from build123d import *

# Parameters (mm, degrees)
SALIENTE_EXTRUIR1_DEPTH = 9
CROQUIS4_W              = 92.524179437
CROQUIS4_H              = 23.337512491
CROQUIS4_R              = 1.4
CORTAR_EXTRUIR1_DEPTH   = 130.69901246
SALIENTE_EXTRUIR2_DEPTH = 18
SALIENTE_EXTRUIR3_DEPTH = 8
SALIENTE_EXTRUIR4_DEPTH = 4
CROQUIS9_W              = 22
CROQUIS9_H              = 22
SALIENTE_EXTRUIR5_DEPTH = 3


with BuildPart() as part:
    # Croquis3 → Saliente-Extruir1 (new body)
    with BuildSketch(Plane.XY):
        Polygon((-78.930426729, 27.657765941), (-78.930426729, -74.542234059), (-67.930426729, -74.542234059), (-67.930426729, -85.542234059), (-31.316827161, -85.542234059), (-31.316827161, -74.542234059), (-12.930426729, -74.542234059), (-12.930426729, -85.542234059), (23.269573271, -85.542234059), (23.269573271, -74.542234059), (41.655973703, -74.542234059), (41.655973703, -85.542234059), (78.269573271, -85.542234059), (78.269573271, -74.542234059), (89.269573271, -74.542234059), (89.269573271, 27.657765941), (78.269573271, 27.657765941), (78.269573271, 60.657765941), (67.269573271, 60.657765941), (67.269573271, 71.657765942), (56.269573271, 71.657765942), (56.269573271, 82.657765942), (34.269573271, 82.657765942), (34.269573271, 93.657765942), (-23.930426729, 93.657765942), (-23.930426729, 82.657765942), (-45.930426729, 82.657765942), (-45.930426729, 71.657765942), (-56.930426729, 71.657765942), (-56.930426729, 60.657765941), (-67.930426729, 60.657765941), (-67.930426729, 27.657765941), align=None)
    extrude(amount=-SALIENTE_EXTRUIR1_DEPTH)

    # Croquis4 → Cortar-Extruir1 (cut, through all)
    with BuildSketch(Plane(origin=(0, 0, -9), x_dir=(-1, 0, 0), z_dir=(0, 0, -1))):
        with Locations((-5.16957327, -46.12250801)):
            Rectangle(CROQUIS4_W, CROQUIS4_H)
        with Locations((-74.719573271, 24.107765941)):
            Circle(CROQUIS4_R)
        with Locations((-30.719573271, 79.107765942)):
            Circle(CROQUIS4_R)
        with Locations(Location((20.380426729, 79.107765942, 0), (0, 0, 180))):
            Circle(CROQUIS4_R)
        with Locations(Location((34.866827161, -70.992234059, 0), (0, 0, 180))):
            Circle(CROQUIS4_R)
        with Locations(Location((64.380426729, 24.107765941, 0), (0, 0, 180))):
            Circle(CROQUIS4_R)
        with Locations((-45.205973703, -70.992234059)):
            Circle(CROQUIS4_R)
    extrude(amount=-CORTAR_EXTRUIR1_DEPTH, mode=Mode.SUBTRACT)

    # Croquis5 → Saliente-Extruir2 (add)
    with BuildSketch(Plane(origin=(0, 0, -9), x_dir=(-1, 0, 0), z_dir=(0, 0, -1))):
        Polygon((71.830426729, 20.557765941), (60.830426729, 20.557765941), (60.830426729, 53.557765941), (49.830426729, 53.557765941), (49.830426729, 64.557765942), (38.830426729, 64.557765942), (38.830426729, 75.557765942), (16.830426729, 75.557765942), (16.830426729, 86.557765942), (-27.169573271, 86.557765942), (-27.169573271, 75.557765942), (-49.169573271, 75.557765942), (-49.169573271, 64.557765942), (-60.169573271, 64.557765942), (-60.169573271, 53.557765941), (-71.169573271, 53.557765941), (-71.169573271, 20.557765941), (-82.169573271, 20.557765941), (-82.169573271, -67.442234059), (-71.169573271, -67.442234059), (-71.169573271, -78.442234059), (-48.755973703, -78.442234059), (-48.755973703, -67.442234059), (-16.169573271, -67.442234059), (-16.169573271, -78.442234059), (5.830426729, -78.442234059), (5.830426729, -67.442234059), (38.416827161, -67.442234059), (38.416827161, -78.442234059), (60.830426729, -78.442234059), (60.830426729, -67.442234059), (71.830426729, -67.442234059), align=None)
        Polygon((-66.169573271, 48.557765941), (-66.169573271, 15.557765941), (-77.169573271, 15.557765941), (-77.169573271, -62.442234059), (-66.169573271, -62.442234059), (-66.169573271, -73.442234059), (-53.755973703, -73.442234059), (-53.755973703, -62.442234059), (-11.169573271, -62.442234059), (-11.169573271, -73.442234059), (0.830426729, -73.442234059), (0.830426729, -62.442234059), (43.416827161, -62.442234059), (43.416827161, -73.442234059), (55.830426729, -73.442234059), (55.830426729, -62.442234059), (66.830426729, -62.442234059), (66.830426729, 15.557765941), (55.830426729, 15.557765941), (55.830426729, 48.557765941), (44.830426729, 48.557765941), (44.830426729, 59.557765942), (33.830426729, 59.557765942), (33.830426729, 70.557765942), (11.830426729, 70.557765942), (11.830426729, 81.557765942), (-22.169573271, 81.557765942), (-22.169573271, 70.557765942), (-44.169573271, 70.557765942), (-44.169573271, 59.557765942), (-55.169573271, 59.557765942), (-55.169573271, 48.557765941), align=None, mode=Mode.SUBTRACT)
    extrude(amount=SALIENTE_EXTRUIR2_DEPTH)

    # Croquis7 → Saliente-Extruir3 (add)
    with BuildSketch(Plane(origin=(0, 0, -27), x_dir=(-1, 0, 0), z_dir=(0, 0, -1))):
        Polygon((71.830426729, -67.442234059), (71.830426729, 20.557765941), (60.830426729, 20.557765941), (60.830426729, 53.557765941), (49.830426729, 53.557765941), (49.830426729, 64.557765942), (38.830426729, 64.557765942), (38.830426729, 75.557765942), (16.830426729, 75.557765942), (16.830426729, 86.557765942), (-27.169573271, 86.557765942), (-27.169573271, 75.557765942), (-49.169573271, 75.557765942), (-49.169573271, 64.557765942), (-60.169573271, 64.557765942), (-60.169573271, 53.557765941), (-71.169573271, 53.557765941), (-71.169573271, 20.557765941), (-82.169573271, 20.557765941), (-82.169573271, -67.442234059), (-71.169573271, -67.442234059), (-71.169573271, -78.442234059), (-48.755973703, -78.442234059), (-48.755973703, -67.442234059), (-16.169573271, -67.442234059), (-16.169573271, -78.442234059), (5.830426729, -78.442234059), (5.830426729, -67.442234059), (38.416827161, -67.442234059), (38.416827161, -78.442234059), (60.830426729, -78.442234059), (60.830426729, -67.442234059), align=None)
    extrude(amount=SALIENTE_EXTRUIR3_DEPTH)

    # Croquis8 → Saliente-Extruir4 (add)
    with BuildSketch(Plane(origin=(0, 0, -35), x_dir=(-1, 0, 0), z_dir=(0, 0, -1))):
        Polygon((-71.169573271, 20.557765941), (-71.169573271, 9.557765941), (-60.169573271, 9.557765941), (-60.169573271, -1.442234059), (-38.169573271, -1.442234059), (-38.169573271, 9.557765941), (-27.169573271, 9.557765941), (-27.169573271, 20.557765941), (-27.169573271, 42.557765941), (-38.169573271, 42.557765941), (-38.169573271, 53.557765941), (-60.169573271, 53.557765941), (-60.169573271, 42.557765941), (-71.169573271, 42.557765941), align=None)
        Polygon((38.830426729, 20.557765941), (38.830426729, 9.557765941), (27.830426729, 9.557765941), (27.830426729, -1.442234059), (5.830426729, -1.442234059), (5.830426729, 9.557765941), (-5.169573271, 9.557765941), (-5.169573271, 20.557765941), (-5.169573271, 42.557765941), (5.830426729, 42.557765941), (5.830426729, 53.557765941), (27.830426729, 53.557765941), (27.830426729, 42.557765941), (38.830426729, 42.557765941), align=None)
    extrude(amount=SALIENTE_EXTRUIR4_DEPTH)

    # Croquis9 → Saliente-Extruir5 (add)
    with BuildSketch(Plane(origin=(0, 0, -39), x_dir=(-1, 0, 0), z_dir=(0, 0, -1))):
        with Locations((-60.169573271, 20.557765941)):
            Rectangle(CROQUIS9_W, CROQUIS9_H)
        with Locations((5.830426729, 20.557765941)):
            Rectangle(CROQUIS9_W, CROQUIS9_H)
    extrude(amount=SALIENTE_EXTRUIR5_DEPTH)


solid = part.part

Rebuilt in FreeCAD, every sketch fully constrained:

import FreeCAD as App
import Part
import Sketcher

V = App.Vector

doc = App.newDocument("Part")
body = doc.addObject("PartDesign::Body", "Body")

# Sketch on XY plane
sketch1 = body.newObject("Sketcher::SketchObject", "Sketch")
sketch1.AttachmentSupport = (doc.getObject("XY_Plane"), [""])
sketch1.MapMode = "FlatFace"
sketch1.addGeometry([
    Part.LineSegment(V(-79, 28, 0), V(-79, -75, 0)),  # 0
    Part.LineSegment(V(-79, -75, 0), V(-68, -75, 0)),  # 1
    Part.LineSegment(V(-68, -75, 0), V(-68, -86, 0)),  # 2
    Part.LineSegment(V(-68, -86, 0), V(-31, -86, 0)),  # 3
    Part.LineSegment(V(-31, -86, 0), V(-31, -75, 0)),  # 4
    Part.LineSegment(V(-31, -75, 0), V(-13, -75, 0)),  # 5
    Part.LineSegment(V(-13, -75, 0), V(-13, -86, 0)),  # 6
    Part.LineSegment(V(-13, -86, 0), V(23, -86, 0)),  # 7
    Part.LineSegment(V(23, -86, 0), V(23, -75, 0)),  # 8
    Part.LineSegment(V(23, -75, 0), V(42, -75, 0)),  # 9
    Part.LineSegment(V(42, -75, 0), V(42, -86, 0)),  # 10
    Part.LineSegment(V(42, -86, 0), V(78, -86, 0)),  # 11
    Part.LineSegment(V(78, -86, 0), V(78, -75, 0)),  # 12
    Part.LineSegment(V(78, -75, 0), V(89, -75, 0)),  # 13
    Part.LineSegment(V(89, -75, 0), V(89, 28, 0)),  # 14
    Part.LineSegment(V(89, 28, 0), V(78, 28, 0)),  # 15
    Part.LineSegment(V(78, 28, 0), V(78, 61, 0)),  # 16
    Part.LineSegment(V(78, 61, 0), V(67, 61, 0)),  # 17
    Part.LineSegment(V(67, 61, 0), V(67, 72, 0)),  # 18
    Part.LineSegment(V(67, 72, 0), V(56, 72, 0)),  # 19
    Part.LineSegment(V(56, 72, 0), V(56, 83, 0)),  # 20
    Part.LineSegment(V(56, 83, 0), V(34, 83, 0)),  # 21
    Part.LineSegment(V(34, 83, 0), V(34, 94, 0)),  # 22
    Part.LineSegment(V(34, 94, 0), V(-24, 94, 0)),  # 23
    Part.LineSegment(V(-24, 94, 0), V(-24, 83, 0)),  # 24
    Part.LineSegment(V(-24, 83, 0), V(-46, 83, 0)),  # 25
    Part.LineSegment(V(-46, 83, 0), V(-46, 72, 0)),  # 26
    Part.LineSegment(V(-46, 72, 0), V(-57, 72, 0)),  # 27
    Part.LineSegment(V(-57, 72, 0), V(-57, 61, 0)),  # 28
    Part.LineSegment(V(-57, 61, 0), V(-68, 61, 0)),  # 29
    Part.LineSegment(V(-68, 61, 0), V(-68, 28, 0)),  # 30
    Part.LineSegment(V(-68, 28, 0), V(-79, 28, 0)),  # 31
], False)
sketch1.addConstraint([
    Sketcher.Constraint("Coincident", 0, 2, 1, 1),
    Sketcher.Constraint("Coincident", 1, 2, 2, 1),
    Sketcher.Constraint("Coincident", 2, 2, 3, 1),
    Sketcher.Constraint("Coincident", 3, 2, 4, 1),
    Sketcher.Constraint("Coincident", 4, 2, 5, 1),
    Sketcher.Constraint("Coincident", 5, 2, 6, 1),
    Sketcher.Constraint("Coincident", 6, 2, 7, 1),
    Sketcher.Constraint("Coincident", 7, 2, 8, 1),
    Sketcher.Constraint("Coincident", 8, 2, 9, 1),
    Sketcher.Constraint("Coincident", 9, 2, 10, 1),
    Sketcher.Constraint("Coincident", 10, 2, 11, 1),
    Sketcher.Constraint("Coincident", 11, 2, 12, 1),
    Sketcher.Constraint("Coincident", 12, 2, 13, 1),
    Sketcher.Constraint("Coincident", 13, 2, 14, 1),
    Sketcher.Constraint("Coincident", 14, 2, 15, 1),
    Sketcher.Constraint("Coincident", 15, 2, 16, 1),
    Sketcher.Constraint("Coincident", 16, 2, 17, 1),
    Sketcher.Constraint("Coincident", 17, 2, 18, 1),
    Sketcher.Constraint("Coincident", 18, 2, 19, 1),
    Sketcher.Constraint("Coincident", 19, 2, 20, 1),
    Sketcher.Constraint("Coincident", 20, 2, 21, 1),
    Sketcher.Constraint("Coincident", 21, 2, 22, 1),
    Sketcher.Constraint("Coincident", 22, 2, 23, 1),
    Sketcher.Constraint("Coincident", 23, 2, 24, 1),
    Sketcher.Constraint("Coincident", 24, 2, 25, 1),
    Sketcher.Constraint("Coincident", 25, 2, 26, 1),
    Sketcher.Constraint("Coincident", 26, 2, 27, 1),
    Sketcher.Constraint("Coincident", 27, 2, 28, 1),
    Sketcher.Constraint("Coincident", 28, 2, 29, 1),
    Sketcher.Constraint("Coincident", 29, 2, 30, 1),
    Sketcher.Constraint("Coincident", 30, 2, 31, 1),
    Sketcher.Constraint("Coincident", 31, 2, 0, 1),
    Sketcher.Constraint("Vertical", 0),
    Sketcher.Constraint("Horizontal", 1),
    Sketcher.Constraint("Vertical", 2),
    Sketcher.Constraint("Horizontal", 3),
    Sketcher.Constraint("Vertical", 4),
    Sketcher.Constraint("Horizontal", 5),
    Sketcher.Constraint("Vertical", 6),
    Sketcher.Constraint("Horizontal", 7),
    Sketcher.Constraint("Vertical", 8),
    Sketcher.Constraint("Horizontal", 9),
    Sketcher.Constraint("Vertical", 10),
    Sketcher.Constraint("Horizontal", 11),
    Sketcher.Constraint("Vertical", 12),
    Sketcher.Constraint("Horizontal", 13),
    Sketcher.Constraint("Vertical", 14),
    Sketcher.Constraint("Horizontal", 15),
    Sketcher.Constraint("Vertical", 16),
    Sketcher.Constraint("Horizontal", 17),
    Sketcher.Constraint("Vertical", 18),
    Sketcher.Constraint("Horizontal", 19),
    Sketcher.Constraint("Vertical", 20),
    Sketcher.Constraint("Horizontal", 21),
    Sketcher.Constraint("Vertical", 22),
    Sketcher.Constraint("Horizontal", 23),
    Sketcher.Constraint("Vertical", 24),
    Sketcher.Constraint("Horizontal", 25),
    Sketcher.Constraint("Vertical", 26),
    Sketcher.Constraint("Horizontal", 27),
    Sketcher.Constraint("Vertical", 28),
    Sketcher.Constraint("Horizontal", 29),
    Sketcher.Constraint("Vertical", 30),
    Sketcher.Constraint("Horizontal", 31),
    Sketcher.Constraint("Horizontal", 1, 2, 4, 2),
    Sketcher.Constraint("Horizontal", 3, 2, 6, 2),
    Sketcher.Constraint("Horizontal", 5, 2, 8, 2),
    Sketcher.Constraint("Horizontal", 7, 2, 10, 2),
    Sketcher.Constraint("Horizontal", 9, 2, 12, 2),
    Sketcher.Constraint("Horizontal", 21, 2, 24, 2),
    Sketcher.Constraint("Horizontal", 19, 2, 26, 2),
    Sketcher.Constraint("Horizontal", 17, 2, 28, 2),
    Sketcher.Constraint("Horizontal", 15, 2, 30, 2),
    Sketcher.Constraint("Vertical", 12, 2, 15, 2),
    Sketcher.Constraint("Vertical", 2, 2, 29, 2),
    Sketcher.Constraint("Equal", 5, 9),
    Sketcher.Constraint("Equal", 3, 11),
    Sketcher.Constraint("Equal", 1, 13),
    Sketcher.Constraint("Equal", 15, 17),
    Sketcher.Constraint("Equal", 17, 19),
    Sketcher.Constraint("Equal", 21, 25),
    Sketcher.Constraint("Equal", 19, 27),
    Sketcher.Constraint("Equal", 27, 29),
    Sketcher.Constraint("Equal", 31, 2),
    Sketcher.Constraint("Equal", 12, 18),
    Sketcher.Constraint("Equal", 18, 20),
    Sketcher.Constraint("Equal", 20, 22),
    Sketcher.Constraint("DistanceX", 1, 1, 1, 2, 11.0),
    Sketcher.Constraint("DistanceX", 21, 2, 21, 1, 22.0),
    Sketcher.Constraint("DistanceY", 16, 1, 16, 2, 33.0),
    Sketcher.Constraint("DistanceX", 7, 1, 7, 2, 36.2),
    Sketcher.Constraint("DistanceX", 23, 2, 23, 1, 58.2),
    Sketcher.Constraint("DistanceY", 0, 2, 0, 1, 102.2),
    Sketcher.Constraint("DistanceX", 3, 1, 3, 2, 36.6136),
    Sketcher.Constraint("DistanceX", 0, 2, -1, 1, 78.930427),
    Sketcher.Constraint("DistanceY", 0, 2, -1, 1, 74.542234),
])
pad1 = body.newObject("PartDesign::Pad", "Pad")
pad1.Profile = sketch1
pad1.Length = 9
pad1.Reversed = True

# Sketch on XY plane
sketch2 = body.newObject("Sketcher::SketchObject", "Sketch001")
sketch2.AttachmentSupport = (doc.getObject("XY_Plane"), [""])
sketch2.MapMode = "FlatFace"
sketch2.AttachmentOffset = App.Placement(V(0, 0, -9), App.Rotation())
sketch2.addGeometry([
    Part.LineSegment(V(51.4, -34.5, 0), V(51.4, -57.8, 0)),  # 0
    Part.LineSegment(V(51.4, -57.8, 0), V(-41.1, -57.8, 0)),  # 1
    Part.LineSegment(V(-41.1, -57.8, 0), V(-41.1, -34.5, 0)),  # 2
    Part.LineSegment(V(-41.1, -34.5, 0), V(51.4, -34.5, 0)),  # 3
    Part.Circle(V(74.7, 24.1, 0), V(0, 0, 1), 1.4),  # 4
    Part.Circle(V(30.7, 79.1, 0), V(0, 0, 1), 1.4),  # 5
    Part.Circle(V(-20.4, 79.1, 0), V(0, 0, 1), 1.4),  # 6
    Part.Circle(V(-34.9, -71, 0), V(0, 0, 1), 1.4),  # 7
    Part.Circle(V(-64.4, 24.1, 0), V(0, 0, 1), 1.4),  # 8
    Part.Circle(V(45.2, -71, 0), V(0, 0, 1), 1.4),  # 9
], False)
sketch2.addConstraint([
    Sketcher.Constraint("Coincident", 0, 2, 1, 1),
    Sketcher.Constraint("Coincident", 1, 2, 2, 1),
    Sketcher.Constraint("Coincident", 2, 2, 3, 1),
    Sketcher.Constraint("Coincident", 3, 2, 0, 1),
    Sketcher.Constraint("Vertical", 0),
    Sketcher.Constraint("Horizontal", 1),
    Sketcher.Constraint("Vertical", 2),
    Sketcher.Constraint("Horizontal", 3),
    Sketcher.Constraint("Equal", 4, 5),
    Sketcher.Constraint("Equal", 5, 6),
    Sketcher.Constraint("Equal", 6, 7),
    Sketcher.Constraint("Equal", 7, 8),
    Sketcher.Constraint("Equal", 8, 9),
    Sketcher.Constraint("Horizontal", 5, 3, 6, 3),
    Sketcher.Constraint("Horizontal", 4, 3, 8, 3),
    Sketcher.Constraint("Horizontal", 7, 3, 9, 3),
    Sketcher.Constraint("Diameter", 4, 2.8),
    Sketcher.Constraint("DistanceX", 5, 3, 4, 3, 44.0),
    Sketcher.Constraint("DistanceY", 4, 3, 5, 3, 55.0),
    Sketcher.Constraint("DistanceX", 8, 3, 6, 3, 44.0),
    Sketcher.Constraint("DistanceX", 6, 3, 5, 3, 51.1),
    Sketcher.Constraint("DistanceY", 7, 3, 4, 3, 95.1),
    Sketcher.Constraint("DistanceX", 1, 2, 1, 1, 92.524179),
    Sketcher.Constraint("DistanceX", 7, 3, 4, 3, 109.5864),
    Sketcher.Constraint("DistanceX", 7, 3, 9, 3, 80.072801),
    Sketcher.Constraint("DistanceY", 0, 2, 0, 1, 23.337512),
    Sketcher.Constraint("DistanceY", 2, 2, -1, 1, 34.453752),
    Sketcher.Constraint("DistanceX", 9, 3, 0, 2, 6.225689),
    Sketcher.Constraint("DistanceY", 9, 3, 0, 2, 13.20097),
    Sketcher.Constraint("DistanceX", -1, 1, 4, 3, 74.719573),
])
pocket1 = body.newObject("PartDesign::Pocket", "Pocket")
pocket1.Profile = sketch2
pocket1.Type = "ThroughAll"
pocket1.Reversed = True

# Sketch on XY plane
sketch3 = body.newObject("Sketcher::SketchObject", "Sketch002")
sketch3.AttachmentSupport = (doc.getObject("XY_Plane"), [""])
sketch3.MapMode = "FlatFace"
sketch3.AttachmentOffset = App.Placement(V(0, 0, -9), App.Rotation())
sketch3.addGeometry([
    Part.LineSegment(V(-72, 21, 0), V(-61, 21, 0)),  # 0
    Part.LineSegment(V(-61, 21, 0), V(-61, 54, 0)),  # 1
    Part.LineSegment(V(-61, 54, 0), V(-50, 54, 0)),  # 2
    Part.LineSegment(V(-50, 54, 0), V(-50, 65, 0)),  # 3
    Part.LineSegment(V(-50, 65, 0), V(-39, 65, 0)),  # 4
    Part.LineSegment(V(-39, 65, 0), V(-39, 76, 0)),  # 5
    Part.LineSegment(V(-39, 76, 0), V(-17, 76, 0)),  # 6
    Part.LineSegment(V(-17, 76, 0), V(-17, 87, 0)),  # 7
    Part.LineSegment(V(-17, 87, 0), V(27, 87, 0)),  # 8
    Part.LineSegment(V(27, 87, 0), V(27, 76, 0)),  # 9
    Part.LineSegment(V(27, 76, 0), V(49, 76, 0)),  # 10
    Part.LineSegment(V(49, 76, 0), V(49, 65, 0)),  # 11
    Part.LineSegment(V(49, 65, 0), V(60, 65, 0)),  # 12
    Part.LineSegment(V(60, 65, 0), V(60, 54, 0)),  # 13
    Part.LineSegment(V(60, 54, 0), V(71, 54, 0)),  # 14
    Part.LineSegment(V(71, 54, 0), V(71, 21, 0)),  # 15
    Part.LineSegment(V(71, 21, 0), V(82, 21, 0)),  # 16
    Part.LineSegment(V(82, 21, 0), V(82, -67, 0)),  # 17
    Part.LineSegment(V(82, -67, 0), V(71, -67, 0)),  # 18
    Part.LineSegment(V(71, -67, 0), V(71, -78, 0)),  # 19
    Part.LineSegment(V(71, -78, 0), V(49, -78, 0)),  # 20
    Part.LineSegment(V(49, -78, 0), V(49, -67, 0)),  # 21
    Part.LineSegment(V(49, -67, 0), V(16, -67, 0)),  # 22
    Part.LineSegment(V(16, -67, 0), V(16, -78, 0)),  # 23
    Part.LineSegment(V(16, -78, 0), V(-6, -78, 0)),  # 24
    Part.LineSegment(V(-6, -78, 0), V(-6, -67, 0)),  # 25
    Part.LineSegment(V(-6, -67, 0), V(-38, -67, 0)),  # 26
    Part.LineSegment(V(-38, -67, 0), V(-38, -78, 0)),  # 27
    Part.LineSegment(V(-38, -78, 0), V(-61, -78, 0)),  # 28
    Part.LineSegment(V(-61, -78, 0), V(-61, -67, 0)),  # 29
    Part.LineSegment(V(-61, -67, 0), V(-72, -67, 0)),  # 30
    Part.LineSegment(V(-72, -67, 0), V(-72, 21, 0)),  # 31
    Part.LineSegment(V(66, 16, 0), V(66, 49, 0)),  # 32
    Part.LineSegment(V(66, 49, 0), V(55, 49, 0)),  # 33
    Part.LineSegment(V(55, 49, 0), V(55, 60, 0)),  # 34
    Part.LineSegment(V(55, 60, 0), V(44, 60, 0)),  # 35
    Part.LineSegment(V(44, 60, 0), V(44, 71, 0)),  # 36
    Part.LineSegment(V(44, 71, 0), V(22, 71, 0)),  # 37
    Part.LineSegment(V(22, 71, 0), V(22, 82, 0)),  # 38
    Part.LineSegment(V(22, 82, 0), V(-12, 82, 0)),  # 39
    Part.LineSegment(V(-12, 82, 0), V(-12, 71, 0)),  # 40
    Part.LineSegment(V(-12, 71, 0), V(-34, 71, 0)),  # 41
    Part.LineSegment(V(-34, 71, 0), V(-34, 60, 0)),  # 42
    Part.LineSegment(V(-34, 60, 0), V(-45, 60, 0)),  # 43
    Part.LineSegment(V(-45, 60, 0), V(-45, 49, 0)),  # 44
    Part.LineSegment(V(-45, 49, 0), V(-56, 49, 0)),  # 45
    Part.LineSegment(V(-56, 49, 0), V(-56, 16, 0)),  # 46
    Part.LineSegment(V(-56, 16, 0), V(-67, 16, 0)),  # 47
    Part.LineSegment(V(-67, 16, 0), V(-67, -62, 0)),  # 48
    Part.LineSegment(V(-67, -62, 0), V(-56, -62, 0)),  # 49
    Part.LineSegment(V(-56, -62, 0), V(-56, -73, 0)),  # 50
    Part.LineSegment(V(-56, -73, 0), V(-43, -73, 0)),  # 51
    Part.LineSegment(V(-43, -73, 0), V(-43, -62, 0)),  # 52
    Part.LineSegment(V(-43, -62, 0), V(-1, -62, 0)),  # 53
    Part.LineSegment(V(-1, -62, 0), V(-1, -73, 0)),  # 54
    Part.LineSegment(V(-1, -73, 0), V(11, -73, 0)),  # 55
    Part.LineSegment(V(11, -73, 0), V(11, -62, 0)),  # 56
    Part.LineSegment(V(11, -62, 0), V(54, -62, 0)),  # 57
    Part.LineSegment(V(54, -62, 0), V(54, -73, 0)),  # 58
    Part.LineSegment(V(54, -73, 0), V(66, -73, 0)),  # 59
    Part.LineSegment(V(66, -73, 0), V(66, -62, 0)),  # 60
    Part.LineSegment(V(66, -62, 0), V(77, -62, 0)),  # 61
    Part.LineSegment(V(77, -62, 0), V(77, 16, 0)),  # 62
    Part.LineSegment(V(77, 16, 0), V(66, 16, 0)),  # 63
], False)
sketch3.addConstraint([
    Sketcher.Constraint("Coincident", 0, 2, 1, 1),
    Sketcher.Constraint("Coincident", 1, 2, 2, 1),
    Sketcher.Constraint("Coincident", 2, 2, 3, 1),
    Sketcher.Constraint("Coincident", 3, 2, 4, 1),
    Sketcher.Constraint("Coincident", 4, 2, 5, 1),
    Sketcher.Constraint("Coincident", 5, 2, 6, 1),
    Sketcher.Constraint("Coincident", 6, 2, 7, 1),
    Sketcher.Constraint("Coincident", 7, 2, 8, 1),
    Sketcher.Constraint("Coincident", 8, 2, 9, 1),
    Sketcher.Constraint("Coincident", 9, 2, 10, 1),
    Sketcher.Constraint("Coincident", 10, 2, 11, 1),
    Sketcher.Constraint("Coincident", 11, 2, 12, 1),
    Sketcher.Constraint("Coincident", 12, 2, 13, 1),
    Sketcher.Constraint("Coincident", 13, 2, 14, 1),
    Sketcher.Constraint("Coincident", 14, 2, 15, 1),
    Sketcher.Constraint("Coincident", 15, 2, 16, 1),
    Sketcher.Constraint("Coincident", 16, 2, 17, 1),
    Sketcher.Constraint("Coincident", 17, 2, 18, 1),
    Sketcher.Constraint("Coincident", 18, 2, 19, 1),
    Sketcher.Constraint("Coincident", 19, 2, 20, 1),
    Sketcher.Constraint("Coincident", 20, 2, 21, 1),
    Sketcher.Constraint("Coincident", 21, 2, 22, 1),
    Sketcher.Constraint("Coincident", 22, 2, 23, 1),
    Sketcher.Constraint("Coincident", 23, 2, 24, 1),
    Sketcher.Constraint("Coincident", 24, 2, 25, 1),
    Sketcher.Constraint("Coincident", 25, 2, 26, 1),
    Sketcher.Constraint("Coincident", 26, 2, 27, 1),
    Sketcher.Constraint("Coincident", 27, 2, 28, 1),
    Sketcher.Constraint("Coincident", 28, 2, 29, 1),
    Sketcher.Constraint("Coincident", 29, 2, 30, 1),
    Sketcher.Constraint("Coincident", 30, 2, 31, 1),
    Sketcher.Constraint("Coincident", 31, 2, 0, 1),
    Sketcher.Constraint("Coincident", 32, 2, 33, 1),
    Sketcher.Constraint("Coincident", 33, 2, 34, 1),
    Sketcher.Constraint("Coincident", 34, 2, 35, 1),
    Sketcher.Constraint("Coincident", 35, 2, 36, 1),
    Sketcher.Constraint("Coincident", 36, 2, 37, 1),
    Sketcher.Constraint("Coincident", 37, 2, 38, 1),
    Sketcher.Constraint("Coincident", 38, 2, 39, 1),
    Sketcher.Constraint("Coincident", 39, 2, 40, 1),
    Sketcher.Constraint("Coincident", 40, 2, 41, 1),
    Sketcher.Constraint("Coincident", 41, 2, 42, 1),
    Sketcher.Constraint("Coincident", 42, 2, 43, 1),
    Sketcher.Constraint("Coincident", 43, 2, 44, 1),
    Sketcher.Constraint("Coincident", 44, 2, 45, 1),
    Sketcher.Constraint("Coincident", 45, 2, 46, 1),
    Sketcher.Constraint("Coincident", 46, 2, 47, 1),
    Sketcher.Constraint("Coincident", 47, 2, 48, 1),
    Sketcher.Constraint("Coincident", 48, 2, 49, 1),
    Sketcher.Constraint("Coincident", 49, 2, 50, 1),
    Sketcher.Constraint("Coincident", 50, 2, 51, 1),
    Sketcher.Constraint("Coincident", 51, 2, 52, 1),
    Sketcher.Constraint("Coincident", 52, 2, 53, 1),
    Sketcher.Constraint("Coincident", 53, 2, 54, 1),
    Sketcher.Constraint("Coincident", 54, 2, 55, 1),
    Sketcher.Constraint("Coincident", 55, 2, 56, 1),
    Sketcher.Constraint("Coincident", 56, 2, 57, 1),
    Sketcher.Constraint("Coincident", 57, 2, 58, 1),
    Sketcher.Constraint("Coincident", 58, 2, 59, 1),
    Sketcher.Constraint("Coincident", 59, 2, 60, 1),
    Sketcher.Constraint("Coincident", 60, 2, 61, 1),
    Sketcher.Constraint("Coincident", 61, 2, 62, 1),
    Sketcher.Constraint("Coincident", 62, 2, 63, 1),
    Sketcher.Constraint("Coincident", 63, 2, 32, 1),
    Sketcher.Constraint("Horizontal", 0),
    Sketcher.Constraint("Vertical", 1),
    Sketcher.Constraint("Horizontal", 2),
    Sketcher.Constraint("Vertical", 3),
    Sketcher.Constraint("Horizontal", 4),
    Sketcher.Constraint("Vertical", 5),
    Sketcher.Constraint("Horizontal", 6),
    Sketcher.Constraint("Vertical", 7),
    Sketcher.Constraint("Horizontal", 8),
    Sketcher.Constraint("Vertical", 9),
    Sketcher.Constraint("Horizontal", 10),
    Sketcher.Constraint("Vertical", 11),
    Sketcher.Constraint("Horizontal", 12),
    Sketcher.Constraint("Vertical", 13),
    Sketcher.Constraint("Horizontal", 14),
    Sketcher.Constraint("Vertical", 15),
    Sketcher.Constraint("Horizontal", 16),
    Sketcher.Constraint("Vertical", 17),
    Sketcher.Constraint("Horizontal", 18),
    Sketcher.Constraint("Vertical", 19),
    Sketcher.Constraint("Horizontal", 20),
    Sketcher.Constraint("Vertical", 21),
    Sketcher.Constraint("Horizontal", 22),
    Sketcher.Constraint("Vertical", 23),
    Sketcher.Constraint("Horizontal", 24),
    Sketcher.Constraint("Vertical", 25),
    Sketcher.Constraint("Horizontal", 26),
    Sketcher.Constraint("Vertical", 27),
    Sketcher.Constraint("Horizontal", 28),
    Sketcher.Constraint("Vertical", 29),
    Sketcher.Constraint("Horizontal", 30),
    Sketcher.Constraint("Vertical", 31),
    Sketcher.Constraint("Vertical", 32),
    Sketcher.Constraint("Horizontal", 33),
    Sketcher.Constraint("Vertical", 34),
    Sketcher.Constraint("Horizontal", 35),
    Sketcher.Constraint("Vertical", 36),
    Sketcher.Constraint("Horizontal", 37),
    Sketcher.Constraint("Vertical", 38),
    Sketcher.Constraint("Horizontal", 39),
    Sketcher.Constraint("Vertical", 40),
    Sketcher.Constraint("Horizontal", 41),
    Sketcher.Constraint("Vertical", 42),
    Sketcher.Constraint("Horizontal", 43),
    Sketcher.Constraint("Vertical", 44),
    Sketcher.Constraint("Horizontal", 45),
    Sketcher.Constraint("Vertical", 46),
    Sketcher.Constraint("Horizontal", 47),
    Sketcher.Constraint("Vertical", 48),
    Sketcher.Constraint("Horizontal", 49),
    Sketcher.Constraint("Vertical", 50),
    Sketcher.Constraint("Horizontal", 51),
    Sketcher.Constraint("Vertical", 52),
    Sketcher.Constraint("Horizontal", 53),
    Sketcher.Constraint("Vertical", 54),
    Sketcher.Constraint("Horizontal", 55),
    Sketcher.Constraint("Vertical", 56),
    Sketcher.Constraint("Horizontal", 57),
    Sketcher.Constraint("Vertical", 58),
    Sketcher.Constraint("Horizontal", 59),
    Sketcher.Constraint("Vertical", 60),
    Sketcher.Constraint("Horizontal", 61),
    Sketcher.Constraint("Vertical", 62),
    Sketcher.Constraint("Horizontal", 63),
    Sketcher.Constraint("Horizontal", 6, 2, 9, 2),
    Sketcher.Constraint("Horizontal", 4, 2, 11, 2),
    Sketcher.Constraint("Horizontal", 2, 2, 13, 2),
    Sketcher.Constraint("Horizontal", 0, 2, 15, 2),
    Sketcher.Constraint("Horizontal", 18, 2, 21, 2),
    Sketcher.Constraint("Horizontal", 20, 2, 23, 2),
    Sketcher.Constraint("Horizontal", 22, 2, 25, 2),
    Sketcher.Constraint("Horizontal", 24, 2, 27, 2),
    Sketcher.Constraint("Horizontal", 26, 2, 29, 2),
    Sketcher.Constraint("Horizontal", 37, 2, 40, 2),
    Sketcher.Constraint("Horizontal", 35, 2, 42, 2),
    Sketcher.Constraint("Horizontal", 33, 2, 44, 2),
    Sketcher.Constraint("Horizontal", 49, 2, 52, 2),
    Sketcher.Constraint("Horizontal", 51, 2, 54, 2),
    Sketcher.Constraint("Horizontal", 53, 2, 56, 2),
    Sketcher.Constraint("Horizontal", 55, 2, 58, 2),
    Sketcher.Constraint("Horizontal", 57, 2, 60, 2),
    Sketcher.Constraint("Horizontal", 47, 2, 62, 2),
    Sketcher.Constraint("Vertical", 15, 2, 18, 2),
    Sketcher.Constraint("Vertical", 1, 2, 28, 2),
    Sketcher.Constraint("Vertical", 46, 2, 49, 2),
    Sketcher.Constraint("Vertical", 32, 2, 59, 2),
    Sketcher.Constraint("Equal", 0, 2),
    Sketcher.Constraint("Equal", 2, 4),
    Sketcher.Constraint("Equal", 6, 10),
    Sketcher.Constraint("Equal", 4, 12),
    Sketcher.Constraint("Equal", 12, 14),
    Sketcher.Constraint("Equal", 14, 16),
    Sketcher.Constraint("Equal", 10, 24),
    Sketcher.Constraint("Equal", 22, 26),
    Sketcher.Constraint("Equal", 20, 28),
    Sketcher.Constraint("Equal", 30, 33),
    Sketcher.Constraint("Equal", 33, 35),
    Sketcher.Constraint("Equal", 24, 37),
    Sketcher.Constraint("Equal", 37, 41),
    Sketcher.Constraint("Equal", 35, 43),
    Sketcher.Constraint("Equal", 43, 45),
    Sketcher.Constraint("Equal", 45, 47),
    Sketcher.Constraint("Equal", 53, 57),
    Sketcher.Constraint("Equal", 51, 59),
    Sketcher.Constraint("Equal", 49, 61),
    Sketcher.Constraint("Equal", 63, 3),
    Sketcher.Constraint("Equal", 3, 5),
    Sketcher.Constraint("Equal", 5, 7),
    Sketcher.Constraint("Equal", 13, 19),
    Sketcher.Constraint("Equal", 15, 32),
    Sketcher.Constraint("Equal", 29, 34),
    Sketcher.Constraint("Equal", 34, 36),
    Sketcher.Constraint("Equal", 36, 38),
    Sketcher.Constraint("Equal", 44, 50),
    Sketcher.Constraint("DistanceX", 0, 1, 0, 2, 11.0),
    Sketcher.Constraint("DistanceX", 6, 1, 6, 2, 22.0),
    Sketcher.Constraint("DistanceX", 8, 1, 8, 2, 44.0),
    Sketcher.Constraint("DistanceX", 39, 2, 39, 1, 34.0),
    Sketcher.Constraint("DistanceX", 55, 1, 55, 2, 12.0),
    Sketcher.Constraint("DistanceY", 1, 1, 1, 2, 33.0),
    Sketcher.Constraint("DistanceY", 17, 2, 17, 1, 88.0),
    Sketcher.Constraint("DistanceY", 48, 2, 48, 1, 78.0),
    Sketcher.Constraint("DistanceX", 20, 2, 20, 1, 22.4136),
    Sketcher.Constraint("DistanceX", 51, 1, 51, 2, 12.4136),
    Sketcher.Constraint("DistanceX", 0, 2, -1, 1, 60.830427),
    Sketcher.Constraint("DistanceY", -1, 1, 0, 2, 20.557766),
    Sketcher.Constraint("DistanceX", -1, 1, 32, 2, 66.169573),
    Sketcher.Constraint("DistanceY", -1, 1, 32, 2, 48.557766),
])
pad2 = body.newObject("PartDesign::Pad", "Pad001")
pad2.Profile = sketch3
pad2.Length = 18
pad2.Reversed = True

# Sketch on XY plane
sketch4 = body.newObject("Sketcher::SketchObject", "Sketch003")
sketch4.AttachmentSupport = (doc.getObject("XY_Plane"), [""])
sketch4.MapMode = "FlatFace"
sketch4.AttachmentOffset = App.Placement(V(0, 0, -27), App.Rotation())
sketch4.addGeometry([
    Part.LineSegment(V(-72, -67, 0), V(-72, 21, 0)),  # 0
    Part.LineSegment(V(-72, 21, 0), V(-61, 21, 0)),  # 1
    Part.LineSegment(V(-61, 21, 0), V(-61, 54, 0)),  # 2
    Part.LineSegment(V(-61, 54, 0), V(-50, 54, 0)),  # 3
    Part.LineSegment(V(-50, 54, 0), V(-50, 65, 0)),  # 4
    Part.LineSegment(V(-50, 65, 0), V(-39, 65, 0)),  # 5
    Part.LineSegment(V(-39, 65, 0), V(-39, 76, 0)),  # 6
    Part.LineSegment(V(-39, 76, 0), V(-17, 76, 0)),  # 7
    Part.LineSegment(V(-17, 76, 0), V(-17, 87, 0)),  # 8
    Part.LineSegment(V(-17, 87, 0), V(27, 87, 0)),  # 9
    Part.LineSegment(V(27, 87, 0), V(27, 76, 0)),  # 10
    Part.LineSegment(V(27, 76, 0), V(49, 76, 0)),  # 11
    Part.LineSegment(V(49, 76, 0), V(49, 65, 0)),  # 12
    Part.LineSegment(V(49, 65, 0), V(60, 65, 0)),  # 13
    Part.LineSegment(V(60, 65, 0), V(60, 54, 0)),  # 14
    Part.LineSegment(V(60, 54, 0), V(71, 54, 0)),  # 15
    Part.LineSegment(V(71, 54, 0), V(71, 21, 0)),  # 16
    Part.LineSegment(V(71, 21, 0), V(82, 21, 0)),  # 17
    Part.LineSegment(V(82, 21, 0), V(82, -67, 0)),  # 18
    Part.LineSegment(V(82, -67, 0), V(71, -67, 0)),  # 19
    Part.LineSegment(V(71, -67, 0), V(71, -78, 0)),  # 20
    Part.LineSegment(V(71, -78, 0), V(49, -78, 0)),  # 21
    Part.LineSegment(V(49, -78, 0), V(49, -67, 0)),  # 22
    Part.LineSegment(V(49, -67, 0), V(16, -67, 0)),  # 23
    Part.LineSegment(V(16, -67, 0), V(16, -78, 0)),  # 24
    Part.LineSegment(V(16, -78, 0), V(-6, -78, 0)),  # 25
    Part.LineSegment(V(-6, -78, 0), V(-6, -67, 0)),  # 26
    Part.LineSegment(V(-6, -67, 0), V(-38, -67, 0)),  # 27
    Part.LineSegment(V(-38, -67, 0), V(-38, -78, 0)),  # 28
    Part.LineSegment(V(-38, -78, 0), V(-61, -78, 0)),  # 29
    Part.LineSegment(V(-61, -78, 0), V(-61, -67, 0)),  # 30
    Part.LineSegment(V(-61, -67, 0), V(-72, -67, 0)),  # 31
], False)
sketch4.addConstraint([
    Sketcher.Constraint("Coincident", 0, 2, 1, 1),
    Sketcher.Constraint("Coincident", 1, 2, 2, 1),
    Sketcher.Constraint("Coincident", 2, 2, 3, 1),
    Sketcher.Constraint("Coincident", 3, 2, 4, 1),
    Sketcher.Constraint("Coincident", 4, 2, 5, 1),
    Sketcher.Constraint("Coincident", 5, 2, 6, 1),
    Sketcher.Constraint("Coincident", 6, 2, 7, 1),
    Sketcher.Constraint("Coincident", 7, 2, 8, 1),
    Sketcher.Constraint("Coincident", 8, 2, 9, 1),
    Sketcher.Constraint("Coincident", 9, 2, 10, 1),
    Sketcher.Constraint("Coincident", 10, 2, 11, 1),
    Sketcher.Constraint("Coincident", 11, 2, 12, 1),
    Sketcher.Constraint("Coincident", 12, 2, 13, 1),
    Sketcher.Constraint("Coincident", 13, 2, 14, 1),
    Sketcher.Constraint("Coincident", 14, 2, 15, 1),
    Sketcher.Constraint("Coincident", 15, 2, 16, 1),
    Sketcher.Constraint("Coincident", 16, 2, 17, 1),
    Sketcher.Constraint("Coincident", 17, 2, 18, 1),
    Sketcher.Constraint("Coincident", 18, 2, 19, 1),
    Sketcher.Constraint("Coincident", 19, 2, 20, 1),
    Sketcher.Constraint("Coincident", 20, 2, 21, 1),
    Sketcher.Constraint("Coincident", 21, 2, 22, 1),
    Sketcher.Constraint("Coincident", 22, 2, 23, 1),
    Sketcher.Constraint("Coincident", 23, 2, 24, 1),
    Sketcher.Constraint("Coincident", 24, 2, 25, 1),
    Sketcher.Constraint("Coincident", 25, 2, 26, 1),
    Sketcher.Constraint("Coincident", 26, 2, 27, 1),
    Sketcher.Constraint("Coincident", 27, 2, 28, 1),
    Sketcher.Constraint("Coincident", 28, 2, 29, 1),
    Sketcher.Constraint("Coincident", 29, 2, 30, 1),
    Sketcher.Constraint("Coincident", 30, 2, 31, 1),
    Sketcher.Constraint("Coincident", 31, 2, 0, 1),
    Sketcher.Constraint("Vertical", 0),
    Sketcher.Constraint("Horizontal", 1),
    Sketcher.Constraint("Vertical", 2),
    Sketcher.Constraint("Horizontal", 3),
    Sketcher.Constraint("Vertical", 4),
    Sketcher.Constraint("Horizontal", 5),
    Sketcher.Constraint("Vertical", 6),
    Sketcher.Constraint("Horizontal", 7),
    Sketcher.Constraint("Vertical", 8),
    Sketcher.Constraint("Horizontal", 9),
    Sketcher.Constraint("Vertical", 10),
    Sketcher.Constraint("Horizontal", 11),
    Sketcher.Constraint("Vertical", 12),
    Sketcher.Constraint("Horizontal", 13),
    Sketcher.Constraint("Vertical", 14),
    Sketcher.Constraint("Horizontal", 15),
    Sketcher.Constraint("Vertical", 16),
    Sketcher.Constraint("Horizontal", 17),
    Sketcher.Constraint("Vertical", 18),
    Sketcher.Constraint("Horizontal", 19),
    Sketcher.Constraint("Vertical", 20),
    Sketcher.Constraint("Horizontal", 21),
    Sketcher.Constraint("Vertical", 22),
    Sketcher.Constraint("Horizontal", 23),
    Sketcher.Constraint("Vertical", 24),
    Sketcher.Constraint("Horizontal", 25),
    Sketcher.Constraint("Vertical", 26),
    Sketcher.Constraint("Horizontal", 27),
    Sketcher.Constraint("Vertical", 28),
    Sketcher.Constraint("Horizontal", 29),
    Sketcher.Constraint("Vertical", 30),
    Sketcher.Constraint("Horizontal", 31),
    Sketcher.Constraint("Horizontal", 7, 2, 10, 2),
    Sketcher.Constraint("Horizontal", 5, 2, 12, 2),
    Sketcher.Constraint("Horizontal", 3, 2, 14, 2),
    Sketcher.Constraint("Horizontal", 1, 2, 16, 2),
    Sketcher.Constraint("Horizontal", 19, 2, 22, 2),
    Sketcher.Constraint("Horizontal", 21, 2, 24, 2),
    Sketcher.Constraint("Horizontal", 23, 2, 26, 2),
    Sketcher.Constraint("Horizontal", 25, 2, 28, 2),
    Sketcher.Constraint("Horizontal", 27, 2, 30, 2),
    Sketcher.Constraint("Vertical", 16, 2, 19, 2),
    Sketcher.Constraint("Vertical", 2, 2, 29, 2),
    Sketcher.Constraint("Equal", 1, 3),
    Sketcher.Constraint("Equal", 3, 5),
    Sketcher.Constraint("Equal", 7, 11),
    Sketcher.Constraint("Equal", 5, 13),
    Sketcher.Constraint("Equal", 13, 15),
    Sketcher.Constraint("Equal", 15, 17),
    Sketcher.Constraint("Equal", 11, 25),
    Sketcher.Constraint("Equal", 23, 27),
    Sketcher.Constraint("Equal", 21, 29),
    Sketcher.Constraint("Equal", 31, 4),
    Sketcher.Constraint("Equal", 4, 6),
    Sketcher.Constraint("Equal", 6, 8),
    Sketcher.Constraint("Equal", 14, 20),
    Sketcher.Constraint("DistanceX", 1, 1, 1, 2, 11.0),
    Sketcher.Constraint("DistanceX", 7, 1, 7, 2, 22.0),
    Sketcher.Constraint("DistanceX", 9, 1, 9, 2, 44.0),
    Sketcher.Constraint("DistanceY", 0, 1, 0, 2, 88.0),
    Sketcher.Constraint("DistanceY", 2, 1, 2, 2, 33.0),
    Sketcher.Constraint("DistanceX", 21, 2, 21, 1, 22.4136),
    Sketcher.Constraint("DistanceX", 0, 2, -1, 1, 71.830427),
    Sketcher.Constraint("DistanceY", -1, 1, 0, 2, 20.557766),
])
pad3 = body.newObject("PartDesign::Pad", "Pad002")
pad3.Profile = sketch4
pad3.Length = 8
pad3.Reversed = True

# Sketch on XY plane
sketch5 = body.newObject("Sketcher::SketchObject", "Sketch004")
sketch5.AttachmentSupport = (doc.getObject("XY_Plane"), [""])
sketch5.MapMode = "FlatFace"
sketch5.AttachmentOffset = App.Placement(V(0, 0, -35), App.Rotation())
sketch5.addGeometry([
    Part.LineSegment(V(71, 10, 0), V(60, 10, 0)),  # 0
    Part.LineSegment(V(60, 10, 0), V(60, -1, 0)),  # 1
    Part.LineSegment(V(60, -1, 0), V(38, -1, 0)),  # 2
    Part.LineSegment(V(38, -1, 0), V(38, 10, 0)),  # 3
    Part.LineSegment(V(38, 10, 0), V(27, 10, 0)),  # 4
    Part.LineSegment(V(27, 10, 0), V(27, 43, 0)),  # 5
    Part.LineSegment(V(27, 43, 0), V(38, 43, 0)),  # 6
    Part.LineSegment(V(38, 43, 0), V(38, 54, 0)),  # 7
    Part.LineSegment(V(38, 54, 0), V(60, 54, 0)),  # 8
    Part.LineSegment(V(60, 54, 0), V(60, 43, 0)),  # 9
    Part.LineSegment(V(60, 43, 0), V(71, 43, 0)),  # 10
    Part.LineSegment(V(71, 43, 0), V(71, 10, 0)),  # 11
    Part.LineSegment(V(-39, 10, 0), V(-39, 43, 0)),  # 12
    Part.LineSegment(V(-39, 43, 0), V(-28, 43, 0)),  # 13
    Part.LineSegment(V(-28, 43, 0), V(-28, 54, 0)),  # 14
    Part.LineSegment(V(-28, 54, 0), V(-6, 54, 0)),  # 15
    Part.LineSegment(V(-6, 54, 0), V(-6, 43, 0)),  # 16
    Part.LineSegment(V(-6, 43, 0), V(5, 43, 0)),  # 17
    Part.LineSegment(V(5, 43, 0), V(5, 10, 0)),  # 18
    Part.LineSegment(V(5, 10, 0), V(-6, 10, 0)),  # 19
    Part.LineSegment(V(-6, 10, 0), V(-6, -1, 0)),  # 20
    Part.LineSegment(V(-6, -1, 0), V(-28, -1, 0)),  # 21
    Part.LineSegment(V(-28, -1, 0), V(-28, 10, 0)),  # 22
    Part.LineSegment(V(-28, 10, 0), V(-39, 10, 0)),  # 23
], False)
sketch5.addConstraint([
    Sketcher.Constraint("Coincident", 0, 2, 1, 1),
    Sketcher.Constraint("Coincident", 1, 2, 2, 1),
    Sketcher.Constraint("Coincident", 2, 2, 3, 1),
    Sketcher.Constraint("Coincident", 3, 2, 4, 1),
    Sketcher.Constraint("Coincident", 4, 2, 5, 1),
    Sketcher.Constraint("Coincident", 5, 2, 6, 1),
    Sketcher.Constraint("Coincident", 6, 2, 7, 1),
    Sketcher.Constraint("Coincident", 7, 2, 8, 1),
    Sketcher.Constraint("Coincident", 8, 2, 9, 1),
    Sketcher.Constraint("Coincident", 9, 2, 10, 1),
    Sketcher.Constraint("Coincident", 10, 2, 11, 1),
    Sketcher.Constraint("Coincident", 11, 2, 0, 1),
    Sketcher.Constraint("Coincident", 12, 2, 13, 1),
    Sketcher.Constraint("Coincident", 13, 2, 14, 1),
    Sketcher.Constraint("Coincident", 14, 2, 15, 1),
    Sketcher.Constraint("Coincident", 15, 2, 16, 1),
    Sketcher.Constraint("Coincident", 16, 2, 17, 1),
    Sketcher.Constraint("Coincident", 17, 2, 18, 1),
    Sketcher.Constraint("Coincident", 18, 2, 19, 1),
    Sketcher.Constraint("Coincident", 19, 2, 20, 1),
    Sketcher.Constraint("Coincident", 20, 2, 21, 1),
    Sketcher.Constraint("Coincident", 21, 2, 22, 1),
    Sketcher.Constraint("Coincident", 22, 2, 23, 1),
    Sketcher.Constraint("Coincident", 23, 2, 12, 1),
    Sketcher.Constraint("Horizontal", 0),
    Sketcher.Constraint("Vertical", 1),
    Sketcher.Constraint("Horizontal", 2),
    Sketcher.Constraint("Vertical", 3),
    Sketcher.Constraint("Horizontal", 4),
    Sketcher.Constraint("Vertical", 5),
    Sketcher.Constraint("Horizontal", 6),
    Sketcher.Constraint("Vertical", 7),
    Sketcher.Constraint("Horizontal", 8),
    Sketcher.Constraint("Vertical", 9),
    Sketcher.Constraint("Horizontal", 10),
    Sketcher.Constraint("Vertical", 11),
    Sketcher.Constraint("Vertical", 12),
    Sketcher.Constraint("Horizontal", 13),
    Sketcher.Constraint("Vertical", 14),
    Sketcher.Constraint("Horizontal", 15),
    Sketcher.Constraint("Vertical", 16),
    Sketcher.Constraint("Horizontal", 17),
    Sketcher.Constraint("Vertical", 18),
    Sketcher.Constraint("Horizontal", 19),
    Sketcher.Constraint("Vertical", 20),
    Sketcher.Constraint("Horizontal", 21),
    Sketcher.Constraint("Vertical", 22),
    Sketcher.Constraint("Horizontal", 23),
    Sketcher.Constraint("Horizontal", 0, 2, 3, 2),
    Sketcher.Constraint("Horizontal", 6, 2, 9, 2),
    Sketcher.Constraint("Horizontal", 10, 2, 12, 2),
    Sketcher.Constraint("Horizontal", 8, 2, 14, 2),
    Sketcher.Constraint("Horizontal", 13, 2, 16, 2),
    Sketcher.Constraint("Horizontal", 11, 2, 18, 2),
    Sketcher.Constraint("Horizontal", 2, 2, 20, 2),
    Sketcher.Constraint("Horizontal", 19, 2, 22, 2),
    Sketcher.Constraint("Vertical", 3, 2, 6, 2),
    Sketcher.Constraint("Vertical", 1, 2, 8, 2),
    Sketcher.Constraint("Vertical", 16, 2, 19, 2),
    Sketcher.Constraint("Vertical", 14, 2, 21, 2),
    Sketcher.Constraint("Equal", 0, 4),
    Sketcher.Constraint("Equal", 10, 13),
    Sketcher.Constraint("Equal", 8, 15),
    Sketcher.Constraint("Equal", 13, 17),
    Sketcher.Constraint("Equal", 23, 1),
    Sketcher.Constraint("Equal", 3, 7),
    Sketcher.Constraint("DistanceX", 0, 2, 0, 1, 11.0),
    Sketcher.Constraint("DistanceX", 2, 2, 2, 1, 22.0),
    Sketcher.Constraint("DistanceY", 5, 1, 5, 2, 33.0),
    Sketcher.Constraint("DistanceX", 12, 2, 5, 2, 66.0),
    Sketcher.Constraint("DistanceX", -1, 1, 0, 2, 60.169573),
    Sketcher.Constraint("DistanceY", -1, 1, 0, 2, 9.557766),
])
pad4 = body.newObject("PartDesign::Pad", "Pad003")
pad4.Profile = sketch5
pad4.Length = 4
pad4.Reversed = True

# Sketch on XY plane
sketch6 = body.newObject("Sketcher::SketchObject", "Sketch005")
sketch6.AttachmentSupport = (doc.getObject("XY_Plane"), [""])
sketch6.MapMode = "FlatFace"
sketch6.AttachmentOffset = App.Placement(V(0, 0, -39), App.Rotation())
sketch6.addGeometry([
    Part.LineSegment(V(71, 32, 0), V(71, 10, 0)),  # 0
    Part.LineSegment(V(71, 10, 0), V(49, 10, 0)),  # 1
    Part.LineSegment(V(49, 10, 0), V(49, 32, 0)),  # 2
    Part.LineSegment(V(49, 32, 0), V(71, 32, 0)),  # 3
    Part.LineSegment(V(5, 32, 0), V(5, 10, 0)),  # 4
    Part.LineSegment(V(5, 10, 0), V(-17, 10, 0)),  # 5
    Part.LineSegment(V(-17, 10, 0), V(-17, 32, 0)),  # 6
    Part.LineSegment(V(-17, 32, 0), V(5, 32, 0)),  # 7
], False)
sketch6.addConstraint([
    Sketcher.Constraint("Coincident", 0, 2, 1, 1),
    Sketcher.Constraint("Coincident", 1, 2, 2, 1),
    Sketcher.Constraint("Coincident", 2, 2, 3, 1),
    Sketcher.Constraint("Coincident", 3, 2, 0, 1),
    Sketcher.Constraint("Coincident", 4, 2, 5, 1),
    Sketcher.Constraint("Coincident", 5, 2, 6, 1),
    Sketcher.Constraint("Coincident", 6, 2, 7, 1),
    Sketcher.Constraint("Coincident", 7, 2, 4, 1),
    Sketcher.Constraint("Vertical", 0),
    Sketcher.Constraint("Horizontal", 1),
    Sketcher.Constraint("Vertical", 2),
    Sketcher.Constraint("Horizontal", 3),
    Sketcher.Constraint("Vertical", 4),
    Sketcher.Constraint("Horizontal", 5),
    Sketcher.Constraint("Vertical", 6),
    Sketcher.Constraint("Horizontal", 7),
    Sketcher.Constraint("Horizontal", 1, 2, 4, 2),
    Sketcher.Constraint("Horizontal", 3, 2, 6, 2),
    Sketcher.Constraint("Equal", 3, 5),
    Sketcher.Constraint("Equal", 7, 0),
    Sketcher.Constraint("DistanceX", 1, 2, 1, 1, 22.0),
    Sketcher.Constraint("DistanceX", 4, 2, 1, 2, 44.0),
    Sketcher.Constraint("DistanceX", -1, 1, 0, 2, 71.169573),
    Sketcher.Constraint("DistanceY", -1, 1, 0, 2, 9.557766),
])
pad5 = body.newObject("PartDesign::Pad", "Pad004")
pad5.Profile = sketch6
pad5.Length = 3
pad5.Reversed = True

doc.recompute()
